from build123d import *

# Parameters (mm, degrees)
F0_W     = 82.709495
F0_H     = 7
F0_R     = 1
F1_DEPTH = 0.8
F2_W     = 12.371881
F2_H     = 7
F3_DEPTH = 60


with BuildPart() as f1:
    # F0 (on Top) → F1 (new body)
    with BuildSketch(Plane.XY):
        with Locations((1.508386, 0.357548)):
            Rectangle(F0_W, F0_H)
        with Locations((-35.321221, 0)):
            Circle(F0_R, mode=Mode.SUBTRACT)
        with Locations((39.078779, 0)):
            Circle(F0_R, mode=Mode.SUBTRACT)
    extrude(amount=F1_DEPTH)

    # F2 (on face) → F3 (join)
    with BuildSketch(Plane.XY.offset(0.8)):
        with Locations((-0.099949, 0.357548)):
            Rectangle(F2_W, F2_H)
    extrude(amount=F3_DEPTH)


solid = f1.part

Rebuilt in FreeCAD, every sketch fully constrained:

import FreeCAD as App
import Part
import Sketcher


def add_polygon(sketch, points):
    """Adds a closed chain of lines whose ends are joined by coincident constraints."""
    first, n = sketch.GeometryCount, len(points)
    for a, b in zip(points, points[1:] + points[:1]):
        sketch.addGeometry(Part.LineSegment(App.Vector(*a, 0), App.Vector(*b, 0)), False)
    for i in range(n):
        sketch.addConstraint(Sketcher.Constraint("Coincident", first + i, 2, first + (i + 1) % n, 1))

doc = App.newDocument("Part")
params = doc.addObject("Spreadsheet::Sheet", "Params")
for row, (alias, value) in enumerate([
    ("sketch1_diameter", "2 mm"),
    ("sketch1_height", "7 mm"),
    ("pad1_length", "0.8 mm"),
    ("sketch2_height", "7 mm"),
    ("pad2_length", "60 mm"),
], start=1):
    params.set(f"A{row}", alias)
    params.set(f"B{row}", "=" + value)
    params.setAlias(f"B{row}", alias)

body = doc.addObject("PartDesign::Body", "Body")

sketch1 = doc.addObject("Sketcher::SketchObject", "Sketch")
body.addObject(sketch1)
sketch1.AttachmentSupport = (doc.XY_Plane, [""])
sketch1.MapMode = "FlatFace"
add_polygon(sketch1, [(-39.8, 3.9), (-39.8, -3.1), (42.9, -3.1), (42.9, 3.9)])
sketch1.addGeometry(Part.Circle(App.Vector(-35.3, 0, 0), App.Vector(0, 0, 1), 1), False)
sketch1.addGeometry(Part.Circle(App.Vector(39.1, 0, 0), App.Vector(0, 0, 1), 1), False)
sketch1.addConstraint(Sketcher.Constraint("Vertical", 0))
sketch1.addConstraint(Sketcher.Constraint("Horizontal", 1))
sketch1.addConstraint(Sketcher.Constraint("Vertical", 2))
sketch1.addConstraint(Sketcher.Constraint("Horizontal", 3))
sketch1.addConstraint(Sketcher.Constraint("Equal", 4, 5))
sketch1.addConstraint(Sketcher.Constraint("PointOnObject", 4, 3, -1))
sketch1.addConstraint(Sketcher.Constraint("PointOnObject", 5, 3, -1))
sketch1.addConstraint(Sketcher.Constraint("Diameter", 4, 2.0))
sketch1.addConstraint(Sketcher.Constraint("DistanceY", 0, 2, 0, 1, 7.0))
sketch1.addConstraint(Sketcher.Constraint("DistanceX", 4, 3, 5, 3, 74.4))
sketch1.addConstraint(Sketcher.Constraint("DistanceX", 1, 1, 1, 2, 82.709495))
sketch1.addConstraint(Sketcher.Constraint("DistanceX", 4, 3, -1, 1, 35.321221))
sketch1.addConstraint(Sketcher.Constraint("DistanceX", 0, 2, -1, 1, 39.846362))
sketch1.addConstraint(Sketcher.Constraint("DistanceY", 0, 2, -1, 1, 3.142452))
sketch1.setExpression("Constraints[11]", "Params.sketch1_diameter")
sketch1.setExpression("Constraints[12]", "Params.sketch1_height")
pad1 = doc.addObject("PartDesign::Pad", "Pad")
body.addObject(pad1)
pad1.Profile = sketch1
pad1.setExpression("Length", "Params.pad1_length")

sketch2 = doc.addObject("Sketcher::SketchObject", "Sketch001")
body.addObject(sketch2)
sketch2.AttachmentSupport = (doc.XY_Plane, [""])
sketch2.MapMode = "FlatFace"
sketch2.AttachmentOffset = App.Placement(App.Vector(0, 0, 0.8), App.Rotation())
add_polygon(sketch2, [(-6, 4), (-6, -3), (6, -3), (6, 4)])
sketch2.addConstraint(Sketcher.Constraint("Vertical", 0))
sketch2.addConstraint(Sketcher.Constraint("Horizontal", 1))
sketch2.addConstraint(Sketcher.Constraint("Vertical", 2))
sketch2.addConstraint(Sketcher.Constraint("Horizontal", 3))
sketch2.addConstraint(Sketcher.Constraint("DistanceY", 0, 2, 0, 1, 7.0))
sketch2.addConstraint(Sketcher.Constraint("DistanceX", 1, 1, 1, 2, 12.371881))
sketch2.addConstraint(Sketcher.Constraint("DistanceX", 0, 2, -1, 1, 6.285889))
sketch2.addConstraint(Sketcher.Constraint("DistanceY", 0, 2, -1, 1, 3.142452))
sketch2.setExpression("Constraints[8]", "Params.sketch2_height")
pad2 = doc.addObject("PartDesign::Pad", "Pad001")
body.addObject(pad2)
pad2.Profile = sketch2
pad2.setExpression("Length", "Params.pad2_length")

doc.recompute()
